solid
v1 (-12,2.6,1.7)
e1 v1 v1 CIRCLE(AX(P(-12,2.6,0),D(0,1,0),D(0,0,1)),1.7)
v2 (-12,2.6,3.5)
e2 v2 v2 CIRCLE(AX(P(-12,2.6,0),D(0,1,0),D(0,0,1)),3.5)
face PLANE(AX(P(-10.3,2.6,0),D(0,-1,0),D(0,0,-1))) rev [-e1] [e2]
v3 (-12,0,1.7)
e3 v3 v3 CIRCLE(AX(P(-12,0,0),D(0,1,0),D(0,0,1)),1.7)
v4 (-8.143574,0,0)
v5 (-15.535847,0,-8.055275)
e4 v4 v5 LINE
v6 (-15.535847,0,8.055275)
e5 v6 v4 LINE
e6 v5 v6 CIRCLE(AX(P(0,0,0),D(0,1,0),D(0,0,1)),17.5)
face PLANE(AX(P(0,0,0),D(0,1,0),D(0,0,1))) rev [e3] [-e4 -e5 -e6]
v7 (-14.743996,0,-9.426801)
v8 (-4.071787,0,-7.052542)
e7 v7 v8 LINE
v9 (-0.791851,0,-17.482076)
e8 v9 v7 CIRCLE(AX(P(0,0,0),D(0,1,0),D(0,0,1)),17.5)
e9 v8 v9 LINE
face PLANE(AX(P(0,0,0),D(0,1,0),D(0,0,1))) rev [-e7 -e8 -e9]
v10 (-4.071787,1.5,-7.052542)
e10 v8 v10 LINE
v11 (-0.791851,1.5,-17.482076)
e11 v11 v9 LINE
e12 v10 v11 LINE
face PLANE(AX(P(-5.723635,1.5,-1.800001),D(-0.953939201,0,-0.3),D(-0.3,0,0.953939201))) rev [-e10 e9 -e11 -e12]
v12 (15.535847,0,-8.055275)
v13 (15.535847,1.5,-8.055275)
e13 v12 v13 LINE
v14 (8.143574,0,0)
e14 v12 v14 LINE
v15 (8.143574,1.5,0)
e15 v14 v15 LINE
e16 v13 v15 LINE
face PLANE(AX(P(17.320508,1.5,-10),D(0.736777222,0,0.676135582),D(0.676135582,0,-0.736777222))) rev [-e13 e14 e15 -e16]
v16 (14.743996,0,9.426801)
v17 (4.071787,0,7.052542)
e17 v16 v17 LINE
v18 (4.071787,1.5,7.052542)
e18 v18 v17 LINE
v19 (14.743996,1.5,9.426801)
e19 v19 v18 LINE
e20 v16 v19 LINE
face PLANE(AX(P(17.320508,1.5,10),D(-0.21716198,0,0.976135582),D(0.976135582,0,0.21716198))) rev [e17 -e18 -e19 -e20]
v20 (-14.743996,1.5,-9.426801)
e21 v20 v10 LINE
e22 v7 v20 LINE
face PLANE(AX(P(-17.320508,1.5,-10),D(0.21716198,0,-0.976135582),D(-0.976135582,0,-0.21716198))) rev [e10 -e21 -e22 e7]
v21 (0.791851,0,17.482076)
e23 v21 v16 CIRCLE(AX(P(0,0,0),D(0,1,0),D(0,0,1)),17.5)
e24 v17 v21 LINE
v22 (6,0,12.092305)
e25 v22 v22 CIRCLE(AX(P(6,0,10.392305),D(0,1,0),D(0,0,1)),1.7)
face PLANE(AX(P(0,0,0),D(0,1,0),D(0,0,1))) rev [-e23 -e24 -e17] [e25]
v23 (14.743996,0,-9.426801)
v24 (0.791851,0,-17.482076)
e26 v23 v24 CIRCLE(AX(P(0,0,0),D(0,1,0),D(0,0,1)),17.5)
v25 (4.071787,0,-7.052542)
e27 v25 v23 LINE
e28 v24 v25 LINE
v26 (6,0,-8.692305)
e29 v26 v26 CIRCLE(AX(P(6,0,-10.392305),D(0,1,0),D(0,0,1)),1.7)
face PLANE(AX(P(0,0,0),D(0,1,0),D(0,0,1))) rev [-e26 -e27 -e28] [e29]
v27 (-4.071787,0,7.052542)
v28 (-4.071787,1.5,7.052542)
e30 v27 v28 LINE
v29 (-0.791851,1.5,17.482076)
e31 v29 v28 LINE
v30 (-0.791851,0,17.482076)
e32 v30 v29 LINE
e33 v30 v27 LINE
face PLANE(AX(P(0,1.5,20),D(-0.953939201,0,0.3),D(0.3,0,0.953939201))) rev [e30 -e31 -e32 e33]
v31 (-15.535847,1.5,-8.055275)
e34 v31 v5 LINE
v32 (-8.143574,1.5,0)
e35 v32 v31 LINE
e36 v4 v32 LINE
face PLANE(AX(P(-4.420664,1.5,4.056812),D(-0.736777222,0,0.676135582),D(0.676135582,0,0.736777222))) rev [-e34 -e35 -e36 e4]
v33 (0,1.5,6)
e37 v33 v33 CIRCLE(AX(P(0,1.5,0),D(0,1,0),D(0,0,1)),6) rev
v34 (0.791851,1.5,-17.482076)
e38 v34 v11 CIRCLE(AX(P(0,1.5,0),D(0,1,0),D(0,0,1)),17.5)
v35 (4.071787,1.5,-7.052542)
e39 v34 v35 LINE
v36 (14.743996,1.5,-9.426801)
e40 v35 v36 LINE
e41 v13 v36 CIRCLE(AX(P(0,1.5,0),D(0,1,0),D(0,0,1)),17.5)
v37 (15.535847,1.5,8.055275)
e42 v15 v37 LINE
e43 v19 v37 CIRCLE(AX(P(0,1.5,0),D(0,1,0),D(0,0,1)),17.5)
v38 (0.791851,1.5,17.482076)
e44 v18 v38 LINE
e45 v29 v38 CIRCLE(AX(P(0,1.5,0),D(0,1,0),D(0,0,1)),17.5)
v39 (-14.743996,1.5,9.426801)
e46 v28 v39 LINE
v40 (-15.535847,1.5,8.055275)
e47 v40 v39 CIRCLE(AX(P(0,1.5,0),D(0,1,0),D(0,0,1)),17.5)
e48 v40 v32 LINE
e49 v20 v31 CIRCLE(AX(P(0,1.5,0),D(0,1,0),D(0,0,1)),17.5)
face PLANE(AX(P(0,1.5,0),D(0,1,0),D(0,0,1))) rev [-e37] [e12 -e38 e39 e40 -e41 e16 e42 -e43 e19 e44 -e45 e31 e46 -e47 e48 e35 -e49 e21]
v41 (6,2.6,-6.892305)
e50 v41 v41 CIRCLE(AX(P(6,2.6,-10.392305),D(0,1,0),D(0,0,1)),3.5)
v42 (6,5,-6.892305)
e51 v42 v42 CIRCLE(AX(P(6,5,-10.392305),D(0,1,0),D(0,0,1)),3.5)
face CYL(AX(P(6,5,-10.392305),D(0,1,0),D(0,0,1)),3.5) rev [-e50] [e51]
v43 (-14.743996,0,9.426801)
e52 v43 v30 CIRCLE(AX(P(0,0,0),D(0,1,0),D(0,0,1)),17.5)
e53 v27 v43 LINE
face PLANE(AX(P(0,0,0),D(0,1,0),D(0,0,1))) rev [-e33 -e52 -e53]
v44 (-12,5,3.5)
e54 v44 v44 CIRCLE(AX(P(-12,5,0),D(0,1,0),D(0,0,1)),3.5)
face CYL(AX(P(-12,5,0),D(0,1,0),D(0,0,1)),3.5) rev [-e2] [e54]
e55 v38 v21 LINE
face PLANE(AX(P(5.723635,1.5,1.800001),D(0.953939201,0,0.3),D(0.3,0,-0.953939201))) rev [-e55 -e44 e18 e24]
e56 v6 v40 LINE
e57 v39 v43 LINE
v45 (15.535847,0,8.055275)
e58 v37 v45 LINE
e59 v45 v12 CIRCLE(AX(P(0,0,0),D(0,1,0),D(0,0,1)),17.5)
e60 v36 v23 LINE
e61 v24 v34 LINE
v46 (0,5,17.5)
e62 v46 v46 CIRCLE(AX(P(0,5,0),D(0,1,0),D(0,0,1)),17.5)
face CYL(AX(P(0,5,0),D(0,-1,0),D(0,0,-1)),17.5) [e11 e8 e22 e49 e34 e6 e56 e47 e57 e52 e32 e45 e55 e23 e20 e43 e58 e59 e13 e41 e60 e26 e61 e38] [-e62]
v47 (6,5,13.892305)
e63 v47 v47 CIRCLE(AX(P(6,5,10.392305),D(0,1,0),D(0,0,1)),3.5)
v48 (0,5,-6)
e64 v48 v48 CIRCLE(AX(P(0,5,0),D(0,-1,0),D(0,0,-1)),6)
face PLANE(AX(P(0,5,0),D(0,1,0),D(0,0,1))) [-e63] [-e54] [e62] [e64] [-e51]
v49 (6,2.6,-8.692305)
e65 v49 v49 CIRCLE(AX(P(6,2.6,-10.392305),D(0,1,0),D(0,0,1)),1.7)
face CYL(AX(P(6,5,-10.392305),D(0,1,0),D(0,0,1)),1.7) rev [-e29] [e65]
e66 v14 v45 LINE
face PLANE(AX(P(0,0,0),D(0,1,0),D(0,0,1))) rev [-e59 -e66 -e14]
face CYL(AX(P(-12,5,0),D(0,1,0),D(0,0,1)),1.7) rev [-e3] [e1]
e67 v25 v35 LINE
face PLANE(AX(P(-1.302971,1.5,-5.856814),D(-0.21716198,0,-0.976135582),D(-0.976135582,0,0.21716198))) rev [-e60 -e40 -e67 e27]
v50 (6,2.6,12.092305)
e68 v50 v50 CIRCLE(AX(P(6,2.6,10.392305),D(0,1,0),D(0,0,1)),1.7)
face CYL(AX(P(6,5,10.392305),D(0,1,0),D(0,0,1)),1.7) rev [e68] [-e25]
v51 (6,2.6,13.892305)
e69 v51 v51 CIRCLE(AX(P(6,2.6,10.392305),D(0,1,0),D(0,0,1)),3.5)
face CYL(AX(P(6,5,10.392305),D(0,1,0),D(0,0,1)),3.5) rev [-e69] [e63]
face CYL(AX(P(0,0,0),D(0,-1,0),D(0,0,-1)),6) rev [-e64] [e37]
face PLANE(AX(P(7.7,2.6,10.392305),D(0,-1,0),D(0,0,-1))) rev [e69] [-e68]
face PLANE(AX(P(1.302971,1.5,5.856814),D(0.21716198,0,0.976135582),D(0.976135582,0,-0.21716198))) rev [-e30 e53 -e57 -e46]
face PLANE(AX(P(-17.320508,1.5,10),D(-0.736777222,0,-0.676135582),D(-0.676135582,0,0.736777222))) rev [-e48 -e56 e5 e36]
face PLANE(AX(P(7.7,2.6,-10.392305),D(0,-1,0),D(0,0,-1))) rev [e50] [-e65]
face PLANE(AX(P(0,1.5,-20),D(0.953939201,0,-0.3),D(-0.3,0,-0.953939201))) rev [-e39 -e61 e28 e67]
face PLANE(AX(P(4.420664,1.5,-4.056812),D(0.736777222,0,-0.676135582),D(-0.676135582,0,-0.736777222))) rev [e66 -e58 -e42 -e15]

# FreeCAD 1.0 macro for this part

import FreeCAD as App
import Part
import Sketcher
from FreeCAD import Vector
Q = App.Units.Quantity

doc = App.newDocument("Part")
params = doc.addObject("Spreadsheet::Sheet", "Params")
for row, (alias, value) in enumerate([
    ("sketch1_diameter", "35 mm"),
    ("pad1_length", "5 mm"),
    ("sketch2_diameter", "3.4 mm"),
    ("hole_diameter", "3.4 mm"),
    ("hole_cbore_diameter", "7 mm"),
    ("hole_cbore_depth", "2.4 mm"),
    ("sketch3_diameter", "12 mm"),
    ("hole2_diameter", "12 mm"),
    ("pocket1_length", "1.5 mm"),
], start=1):
    params.set(f"A{row}", alias)
    params.set(f"B{row}", "=" + value)
    params.setAlias(f"B{row}", alias)

body = doc.addObject("PartDesign::Body", "Body")

sketch1 = body.newObject("Sketcher::SketchObject", "Sketch")
sketch1.AttachmentSupport = (doc.getObject("XZ_Plane"), [""])
sketch1.MapMode = "FlatFace"
sketch1.addGeometry(Part.Circle(Vector(0, 0, 0), Vector(0, 0, 1), 18), False)
sketch1.addConstraint([
    Sketcher.Constraint("Coincident", 0, 3, -1, 1),
    Sketcher.Constraint("Diameter", 0, Q("35 mm")),
])
sketch1.setExpression("Constraints[1]", "Params.sketch1_diameter")
pad1 = body.newObject("PartDesign::Pad", "Pad")
pad1.Profile = sketch1
pad1.setExpression("Length", "Params.pad1_length")
pad1.Reversed = True

sketch2 = body.newObject("Sketcher::SketchObject", "Sketch001")
sketch2.AttachmentSupport = (doc.getObject("XZ_Plane"), [""])
sketch2.MapMode = "FlatFace"
sketch2.AttachmentOffset = App.Placement(Vector(0, 0, -5), App.Rotation())
sketch2.addGeometry(Part.Circle(Vector(-12, 0, 0), Vector(0, 0, 1), 1.7), False)
sketch2.addConstraint([
    Sketcher.Constraint("PointOnObject", 0, 3, -1),
    Sketcher.Constraint("Diameter", 0, Q("3.4 mm")),
    Sketcher.Constraint("DistanceX", 0, 3, -1, 1, Q("12 mm")),
])
sketch2.setExpression("Constraints[1]", "Params.sketch2_diameter")
doc.recompute()
hole = body.newObject("PartDesign::Hole", "Hole")
hole.Profile = sketch2
hole.ThreadType = "None"
hole.setExpression("Diameter", "Params.hole_diameter")
hole.DepthType = "ThroughAll"
hole.HoleCutType = "Counterbore"
hole.setExpression("HoleCutDiameter", "Params.hole_cbore_diameter")
hole.setExpression("HoleCutDepth", "Params.hole_cbore_depth")
hole.Reversed = True
doc.recompute()

polarpattern = body.newObject("PartDesign::PolarPattern", "PolarPattern")
polarpattern.Originals = [hole]
polarpattern.Axis = (doc.getObject("Y_Axis"), [""])
polarpattern.Angle = 360
polarpattern.Occurrences = 3
body.Tip = polarpattern

sketch3 = body.newObject("Sketcher::SketchObject", "Sketch002")
sketch3.AttachmentSupport = (doc.getObject("XZ_Plane"), [""])
sketch3.MapMode = "FlatFace"
sketch3.addGeometry(Part.Circle(Vector(0, 0, 0), Vector(0, 0, 1), 6), False)
sketch3.addConstraint([
    Sketcher.Constraint("Coincident", 0, 3, -1, 1),
    Sketcher.Constraint("Diameter", 0, Q("12 mm")),
])
sketch3.setExpression("Constraints[1]", "Params.sketch3_diameter")
doc.recompute()
hole2 = body.newObject("PartDesign::Hole", "Hole001")
hole2.Profile = sketch3
hole2.ThreadType = "None"
hole2.setExpression("Diameter", "Params.hole2_diameter")
hole2.DepthType = "ThroughAll"

sketch4 = body.newObject("Sketcher::SketchObject", "Sketch003")
sketch4.AttachmentSupport = (doc.getObject("XZ_Plane"), [""])
sketch4.MapMode = "FlatFace"
sketch4.addGeometry([
    Part.LineSegment(Vector(0, 20, 0), Vector(-6, 2, 0)),
    Part.LineSegment(Vector(-6, 2, 0), Vector(6, 2, 0)),
    Part.LineSegment(Vector(6, 2, 0), Vector(0, 20, 0)),
], False)
sketch4.addConstraint([
    Sketcher.Constraint("Coincident", 0, 2, 1, 1),
    Sketcher.Constraint("Coincident", 1, 2, 2, 1),
    Sketcher.Constraint("Coincident", 2, 2, 0, 1),
    Sketcher.Constraint("Horizontal", 1),
    Sketcher.Constraint("PointOnObject", 2, 2, -2),
    Sketcher.Constraint("Equal", 0, 2),
    Sketcher.Constraint("DistanceY", -1, 1, 2, 2, Q("20 mm")),
    Sketcher.Constraint("DistanceY", -1, 1, 0, 2, Q("1.800001 mm")),
    Sketcher.Constraint("DistanceX", 1, 1, 1, 2, Q("11.44727 mm")),
])
pocket1 = body.newObject("PartDesign::Pocket", "Pocket")
pocket1.Profile = sketch4
pocket1.setExpression("Length", "Params.pocket1_length")
doc.recompute()

polarpattern2 = body.newObject("PartDesign::PolarPattern", "PolarPattern001")
polarpattern2.Originals = [pocket1]
polarpattern2.Axis = (doc.getObject("Y_Axis"), [""])
polarpattern2.Angle = 360
polarpattern2.Occurrences = 6
body.Tip = polarpattern2

doc.recompute()
